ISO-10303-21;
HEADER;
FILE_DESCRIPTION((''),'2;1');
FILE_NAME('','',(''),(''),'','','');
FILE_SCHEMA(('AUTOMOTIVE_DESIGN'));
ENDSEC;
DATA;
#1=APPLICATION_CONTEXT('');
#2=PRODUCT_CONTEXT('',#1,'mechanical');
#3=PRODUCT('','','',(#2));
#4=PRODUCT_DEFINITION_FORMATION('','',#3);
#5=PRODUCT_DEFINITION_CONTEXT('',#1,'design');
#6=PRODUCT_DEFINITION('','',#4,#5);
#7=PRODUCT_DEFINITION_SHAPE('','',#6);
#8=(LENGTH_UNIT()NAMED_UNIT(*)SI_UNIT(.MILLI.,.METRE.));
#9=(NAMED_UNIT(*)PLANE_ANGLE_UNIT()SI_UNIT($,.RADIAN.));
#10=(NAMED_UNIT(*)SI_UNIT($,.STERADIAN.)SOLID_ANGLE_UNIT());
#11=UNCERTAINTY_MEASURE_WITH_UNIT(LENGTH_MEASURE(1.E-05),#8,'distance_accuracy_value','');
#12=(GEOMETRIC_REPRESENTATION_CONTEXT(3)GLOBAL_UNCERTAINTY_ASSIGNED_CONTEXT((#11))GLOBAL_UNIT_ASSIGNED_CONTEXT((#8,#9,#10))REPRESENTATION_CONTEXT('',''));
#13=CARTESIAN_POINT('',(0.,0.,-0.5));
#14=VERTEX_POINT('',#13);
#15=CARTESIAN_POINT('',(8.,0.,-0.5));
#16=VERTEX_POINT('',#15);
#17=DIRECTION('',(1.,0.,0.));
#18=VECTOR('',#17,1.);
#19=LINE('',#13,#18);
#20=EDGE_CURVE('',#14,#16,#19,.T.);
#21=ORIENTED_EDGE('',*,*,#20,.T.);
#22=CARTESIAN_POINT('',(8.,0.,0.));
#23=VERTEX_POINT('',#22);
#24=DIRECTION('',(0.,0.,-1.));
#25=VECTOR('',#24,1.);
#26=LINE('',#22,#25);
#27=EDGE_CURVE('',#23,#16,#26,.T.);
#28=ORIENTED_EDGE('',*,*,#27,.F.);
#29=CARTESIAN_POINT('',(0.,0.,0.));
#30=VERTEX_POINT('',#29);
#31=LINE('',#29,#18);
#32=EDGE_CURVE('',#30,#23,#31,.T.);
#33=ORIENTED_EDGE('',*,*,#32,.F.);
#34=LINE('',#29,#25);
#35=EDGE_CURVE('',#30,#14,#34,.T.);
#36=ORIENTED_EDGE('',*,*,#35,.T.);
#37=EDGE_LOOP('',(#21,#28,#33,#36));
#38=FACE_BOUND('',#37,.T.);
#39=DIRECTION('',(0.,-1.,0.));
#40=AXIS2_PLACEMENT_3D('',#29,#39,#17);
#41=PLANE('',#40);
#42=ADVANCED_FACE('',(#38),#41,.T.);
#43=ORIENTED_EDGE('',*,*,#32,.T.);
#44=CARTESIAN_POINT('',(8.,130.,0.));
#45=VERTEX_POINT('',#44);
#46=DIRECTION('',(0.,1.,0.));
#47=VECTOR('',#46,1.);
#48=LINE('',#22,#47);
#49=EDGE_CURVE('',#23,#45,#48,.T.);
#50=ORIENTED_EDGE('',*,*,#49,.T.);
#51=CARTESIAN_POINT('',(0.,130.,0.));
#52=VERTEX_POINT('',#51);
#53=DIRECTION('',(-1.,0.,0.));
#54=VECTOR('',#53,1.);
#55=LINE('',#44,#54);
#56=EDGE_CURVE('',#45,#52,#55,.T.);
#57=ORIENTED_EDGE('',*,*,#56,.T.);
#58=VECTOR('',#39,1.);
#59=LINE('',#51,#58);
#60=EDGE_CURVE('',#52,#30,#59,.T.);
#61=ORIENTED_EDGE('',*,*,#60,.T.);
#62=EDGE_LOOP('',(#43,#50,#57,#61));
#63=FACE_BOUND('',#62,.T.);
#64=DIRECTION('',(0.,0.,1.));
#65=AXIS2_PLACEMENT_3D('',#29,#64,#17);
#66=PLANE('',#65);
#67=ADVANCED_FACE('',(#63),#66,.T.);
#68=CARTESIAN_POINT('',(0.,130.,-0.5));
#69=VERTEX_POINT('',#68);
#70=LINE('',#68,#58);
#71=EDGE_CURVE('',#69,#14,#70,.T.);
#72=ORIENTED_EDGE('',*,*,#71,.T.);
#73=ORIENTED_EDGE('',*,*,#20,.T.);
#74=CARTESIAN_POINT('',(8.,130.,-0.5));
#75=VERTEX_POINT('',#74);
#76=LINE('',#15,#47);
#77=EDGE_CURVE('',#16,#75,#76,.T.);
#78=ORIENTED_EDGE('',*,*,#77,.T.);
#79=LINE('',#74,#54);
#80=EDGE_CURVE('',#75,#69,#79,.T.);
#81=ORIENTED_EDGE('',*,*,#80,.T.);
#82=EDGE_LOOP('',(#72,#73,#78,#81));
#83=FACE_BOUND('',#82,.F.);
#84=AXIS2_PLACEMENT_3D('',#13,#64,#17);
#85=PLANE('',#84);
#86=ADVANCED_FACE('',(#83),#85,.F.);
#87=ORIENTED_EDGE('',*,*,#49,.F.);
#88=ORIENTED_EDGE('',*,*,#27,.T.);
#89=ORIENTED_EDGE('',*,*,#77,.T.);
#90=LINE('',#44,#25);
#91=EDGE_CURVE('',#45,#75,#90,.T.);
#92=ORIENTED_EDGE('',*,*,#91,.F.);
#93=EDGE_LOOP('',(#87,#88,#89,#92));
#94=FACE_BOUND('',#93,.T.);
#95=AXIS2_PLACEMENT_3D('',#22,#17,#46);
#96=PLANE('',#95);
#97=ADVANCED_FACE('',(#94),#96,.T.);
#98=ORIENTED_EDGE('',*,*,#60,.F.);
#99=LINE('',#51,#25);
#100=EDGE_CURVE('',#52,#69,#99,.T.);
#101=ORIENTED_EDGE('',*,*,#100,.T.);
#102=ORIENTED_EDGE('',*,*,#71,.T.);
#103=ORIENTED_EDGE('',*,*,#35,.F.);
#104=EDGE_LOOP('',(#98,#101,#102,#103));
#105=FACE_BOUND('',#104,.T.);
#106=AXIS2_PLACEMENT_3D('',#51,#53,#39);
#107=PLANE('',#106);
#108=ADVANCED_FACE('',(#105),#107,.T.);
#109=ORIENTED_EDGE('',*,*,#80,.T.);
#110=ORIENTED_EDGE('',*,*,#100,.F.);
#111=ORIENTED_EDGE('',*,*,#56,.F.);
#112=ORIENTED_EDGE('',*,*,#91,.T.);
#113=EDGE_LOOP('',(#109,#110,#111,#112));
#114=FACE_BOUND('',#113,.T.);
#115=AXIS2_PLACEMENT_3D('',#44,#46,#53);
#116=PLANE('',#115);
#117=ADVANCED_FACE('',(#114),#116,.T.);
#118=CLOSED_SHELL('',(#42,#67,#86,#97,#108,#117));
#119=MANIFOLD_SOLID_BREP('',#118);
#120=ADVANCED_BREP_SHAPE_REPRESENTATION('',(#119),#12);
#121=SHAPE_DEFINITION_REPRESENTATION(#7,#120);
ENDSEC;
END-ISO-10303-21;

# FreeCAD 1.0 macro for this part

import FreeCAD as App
import Part
import Sketcher

V = App.Vector
Q = App.Units.Quantity

doc = App.newDocument("Part")
body = doc.addObject("PartDesign::Body", "Body")

sketch1 = body.newObject("Sketcher::SketchObject", "Sketch")
sketch1.AttachmentSupport = (doc.getObject("XY_Plane"), [""])
sketch1.MapMode = "FlatFace"
sketch1.addGeometry(Part.LineSegment(V(0, 130, 0), V(0, 0, 0)), False)
sketch1.addGeometry(Part.LineSegment(V(0, 0, 0), V(8, 0, 0)), False)
sketch1.addGeometry(Part.LineSegment(V(8, 0, 0), V(8, 130, 0)), False)
sketch1.addGeometry(Part.LineSegment(V(8, 130, 0), V(0, 130, 0)), False)
sketch1.addConstraint(Sketcher.Constraint("Coincident", 0, 2, 1, 1))
sketch1.addConstraint(Sketcher.Constraint("Coincident", 1, 2, 2, 1))
sketch1.addConstraint(Sketcher.Constraint("Coincident", 2, 2, 3, 1))
sketch1.addConstraint(Sketcher.Constraint("Coincident", 3, 2, 0, 1))
sketch1.addConstraint(Sketcher.Constraint("Vertical", 0))
sketch1.addConstraint(Sketcher.Constraint("Horizontal", 1))
sketch1.addConstraint(Sketcher.Constraint("Vertical", 2))
sketch1.addConstraint(Sketcher.Constraint("Horizontal", 3))
sketch1.addConstraint(Sketcher.Constraint("Coincident", 0, 2, -1, 1))
sketch1.addConstraint(Sketcher.Constraint("DistanceX", 1, 1, 1, 2, Q("8 mm")))
sketch1.addConstraint(Sketcher.Constraint("DistanceY", 0, 2, 0, 1, Q("130 mm")))
pad1 = body.newObject("PartDesign::Pad", "Pad")
pad1.Profile = sketch1
pad1.Length = 0.5
pad1.Reversed = True

doc.recompute()
